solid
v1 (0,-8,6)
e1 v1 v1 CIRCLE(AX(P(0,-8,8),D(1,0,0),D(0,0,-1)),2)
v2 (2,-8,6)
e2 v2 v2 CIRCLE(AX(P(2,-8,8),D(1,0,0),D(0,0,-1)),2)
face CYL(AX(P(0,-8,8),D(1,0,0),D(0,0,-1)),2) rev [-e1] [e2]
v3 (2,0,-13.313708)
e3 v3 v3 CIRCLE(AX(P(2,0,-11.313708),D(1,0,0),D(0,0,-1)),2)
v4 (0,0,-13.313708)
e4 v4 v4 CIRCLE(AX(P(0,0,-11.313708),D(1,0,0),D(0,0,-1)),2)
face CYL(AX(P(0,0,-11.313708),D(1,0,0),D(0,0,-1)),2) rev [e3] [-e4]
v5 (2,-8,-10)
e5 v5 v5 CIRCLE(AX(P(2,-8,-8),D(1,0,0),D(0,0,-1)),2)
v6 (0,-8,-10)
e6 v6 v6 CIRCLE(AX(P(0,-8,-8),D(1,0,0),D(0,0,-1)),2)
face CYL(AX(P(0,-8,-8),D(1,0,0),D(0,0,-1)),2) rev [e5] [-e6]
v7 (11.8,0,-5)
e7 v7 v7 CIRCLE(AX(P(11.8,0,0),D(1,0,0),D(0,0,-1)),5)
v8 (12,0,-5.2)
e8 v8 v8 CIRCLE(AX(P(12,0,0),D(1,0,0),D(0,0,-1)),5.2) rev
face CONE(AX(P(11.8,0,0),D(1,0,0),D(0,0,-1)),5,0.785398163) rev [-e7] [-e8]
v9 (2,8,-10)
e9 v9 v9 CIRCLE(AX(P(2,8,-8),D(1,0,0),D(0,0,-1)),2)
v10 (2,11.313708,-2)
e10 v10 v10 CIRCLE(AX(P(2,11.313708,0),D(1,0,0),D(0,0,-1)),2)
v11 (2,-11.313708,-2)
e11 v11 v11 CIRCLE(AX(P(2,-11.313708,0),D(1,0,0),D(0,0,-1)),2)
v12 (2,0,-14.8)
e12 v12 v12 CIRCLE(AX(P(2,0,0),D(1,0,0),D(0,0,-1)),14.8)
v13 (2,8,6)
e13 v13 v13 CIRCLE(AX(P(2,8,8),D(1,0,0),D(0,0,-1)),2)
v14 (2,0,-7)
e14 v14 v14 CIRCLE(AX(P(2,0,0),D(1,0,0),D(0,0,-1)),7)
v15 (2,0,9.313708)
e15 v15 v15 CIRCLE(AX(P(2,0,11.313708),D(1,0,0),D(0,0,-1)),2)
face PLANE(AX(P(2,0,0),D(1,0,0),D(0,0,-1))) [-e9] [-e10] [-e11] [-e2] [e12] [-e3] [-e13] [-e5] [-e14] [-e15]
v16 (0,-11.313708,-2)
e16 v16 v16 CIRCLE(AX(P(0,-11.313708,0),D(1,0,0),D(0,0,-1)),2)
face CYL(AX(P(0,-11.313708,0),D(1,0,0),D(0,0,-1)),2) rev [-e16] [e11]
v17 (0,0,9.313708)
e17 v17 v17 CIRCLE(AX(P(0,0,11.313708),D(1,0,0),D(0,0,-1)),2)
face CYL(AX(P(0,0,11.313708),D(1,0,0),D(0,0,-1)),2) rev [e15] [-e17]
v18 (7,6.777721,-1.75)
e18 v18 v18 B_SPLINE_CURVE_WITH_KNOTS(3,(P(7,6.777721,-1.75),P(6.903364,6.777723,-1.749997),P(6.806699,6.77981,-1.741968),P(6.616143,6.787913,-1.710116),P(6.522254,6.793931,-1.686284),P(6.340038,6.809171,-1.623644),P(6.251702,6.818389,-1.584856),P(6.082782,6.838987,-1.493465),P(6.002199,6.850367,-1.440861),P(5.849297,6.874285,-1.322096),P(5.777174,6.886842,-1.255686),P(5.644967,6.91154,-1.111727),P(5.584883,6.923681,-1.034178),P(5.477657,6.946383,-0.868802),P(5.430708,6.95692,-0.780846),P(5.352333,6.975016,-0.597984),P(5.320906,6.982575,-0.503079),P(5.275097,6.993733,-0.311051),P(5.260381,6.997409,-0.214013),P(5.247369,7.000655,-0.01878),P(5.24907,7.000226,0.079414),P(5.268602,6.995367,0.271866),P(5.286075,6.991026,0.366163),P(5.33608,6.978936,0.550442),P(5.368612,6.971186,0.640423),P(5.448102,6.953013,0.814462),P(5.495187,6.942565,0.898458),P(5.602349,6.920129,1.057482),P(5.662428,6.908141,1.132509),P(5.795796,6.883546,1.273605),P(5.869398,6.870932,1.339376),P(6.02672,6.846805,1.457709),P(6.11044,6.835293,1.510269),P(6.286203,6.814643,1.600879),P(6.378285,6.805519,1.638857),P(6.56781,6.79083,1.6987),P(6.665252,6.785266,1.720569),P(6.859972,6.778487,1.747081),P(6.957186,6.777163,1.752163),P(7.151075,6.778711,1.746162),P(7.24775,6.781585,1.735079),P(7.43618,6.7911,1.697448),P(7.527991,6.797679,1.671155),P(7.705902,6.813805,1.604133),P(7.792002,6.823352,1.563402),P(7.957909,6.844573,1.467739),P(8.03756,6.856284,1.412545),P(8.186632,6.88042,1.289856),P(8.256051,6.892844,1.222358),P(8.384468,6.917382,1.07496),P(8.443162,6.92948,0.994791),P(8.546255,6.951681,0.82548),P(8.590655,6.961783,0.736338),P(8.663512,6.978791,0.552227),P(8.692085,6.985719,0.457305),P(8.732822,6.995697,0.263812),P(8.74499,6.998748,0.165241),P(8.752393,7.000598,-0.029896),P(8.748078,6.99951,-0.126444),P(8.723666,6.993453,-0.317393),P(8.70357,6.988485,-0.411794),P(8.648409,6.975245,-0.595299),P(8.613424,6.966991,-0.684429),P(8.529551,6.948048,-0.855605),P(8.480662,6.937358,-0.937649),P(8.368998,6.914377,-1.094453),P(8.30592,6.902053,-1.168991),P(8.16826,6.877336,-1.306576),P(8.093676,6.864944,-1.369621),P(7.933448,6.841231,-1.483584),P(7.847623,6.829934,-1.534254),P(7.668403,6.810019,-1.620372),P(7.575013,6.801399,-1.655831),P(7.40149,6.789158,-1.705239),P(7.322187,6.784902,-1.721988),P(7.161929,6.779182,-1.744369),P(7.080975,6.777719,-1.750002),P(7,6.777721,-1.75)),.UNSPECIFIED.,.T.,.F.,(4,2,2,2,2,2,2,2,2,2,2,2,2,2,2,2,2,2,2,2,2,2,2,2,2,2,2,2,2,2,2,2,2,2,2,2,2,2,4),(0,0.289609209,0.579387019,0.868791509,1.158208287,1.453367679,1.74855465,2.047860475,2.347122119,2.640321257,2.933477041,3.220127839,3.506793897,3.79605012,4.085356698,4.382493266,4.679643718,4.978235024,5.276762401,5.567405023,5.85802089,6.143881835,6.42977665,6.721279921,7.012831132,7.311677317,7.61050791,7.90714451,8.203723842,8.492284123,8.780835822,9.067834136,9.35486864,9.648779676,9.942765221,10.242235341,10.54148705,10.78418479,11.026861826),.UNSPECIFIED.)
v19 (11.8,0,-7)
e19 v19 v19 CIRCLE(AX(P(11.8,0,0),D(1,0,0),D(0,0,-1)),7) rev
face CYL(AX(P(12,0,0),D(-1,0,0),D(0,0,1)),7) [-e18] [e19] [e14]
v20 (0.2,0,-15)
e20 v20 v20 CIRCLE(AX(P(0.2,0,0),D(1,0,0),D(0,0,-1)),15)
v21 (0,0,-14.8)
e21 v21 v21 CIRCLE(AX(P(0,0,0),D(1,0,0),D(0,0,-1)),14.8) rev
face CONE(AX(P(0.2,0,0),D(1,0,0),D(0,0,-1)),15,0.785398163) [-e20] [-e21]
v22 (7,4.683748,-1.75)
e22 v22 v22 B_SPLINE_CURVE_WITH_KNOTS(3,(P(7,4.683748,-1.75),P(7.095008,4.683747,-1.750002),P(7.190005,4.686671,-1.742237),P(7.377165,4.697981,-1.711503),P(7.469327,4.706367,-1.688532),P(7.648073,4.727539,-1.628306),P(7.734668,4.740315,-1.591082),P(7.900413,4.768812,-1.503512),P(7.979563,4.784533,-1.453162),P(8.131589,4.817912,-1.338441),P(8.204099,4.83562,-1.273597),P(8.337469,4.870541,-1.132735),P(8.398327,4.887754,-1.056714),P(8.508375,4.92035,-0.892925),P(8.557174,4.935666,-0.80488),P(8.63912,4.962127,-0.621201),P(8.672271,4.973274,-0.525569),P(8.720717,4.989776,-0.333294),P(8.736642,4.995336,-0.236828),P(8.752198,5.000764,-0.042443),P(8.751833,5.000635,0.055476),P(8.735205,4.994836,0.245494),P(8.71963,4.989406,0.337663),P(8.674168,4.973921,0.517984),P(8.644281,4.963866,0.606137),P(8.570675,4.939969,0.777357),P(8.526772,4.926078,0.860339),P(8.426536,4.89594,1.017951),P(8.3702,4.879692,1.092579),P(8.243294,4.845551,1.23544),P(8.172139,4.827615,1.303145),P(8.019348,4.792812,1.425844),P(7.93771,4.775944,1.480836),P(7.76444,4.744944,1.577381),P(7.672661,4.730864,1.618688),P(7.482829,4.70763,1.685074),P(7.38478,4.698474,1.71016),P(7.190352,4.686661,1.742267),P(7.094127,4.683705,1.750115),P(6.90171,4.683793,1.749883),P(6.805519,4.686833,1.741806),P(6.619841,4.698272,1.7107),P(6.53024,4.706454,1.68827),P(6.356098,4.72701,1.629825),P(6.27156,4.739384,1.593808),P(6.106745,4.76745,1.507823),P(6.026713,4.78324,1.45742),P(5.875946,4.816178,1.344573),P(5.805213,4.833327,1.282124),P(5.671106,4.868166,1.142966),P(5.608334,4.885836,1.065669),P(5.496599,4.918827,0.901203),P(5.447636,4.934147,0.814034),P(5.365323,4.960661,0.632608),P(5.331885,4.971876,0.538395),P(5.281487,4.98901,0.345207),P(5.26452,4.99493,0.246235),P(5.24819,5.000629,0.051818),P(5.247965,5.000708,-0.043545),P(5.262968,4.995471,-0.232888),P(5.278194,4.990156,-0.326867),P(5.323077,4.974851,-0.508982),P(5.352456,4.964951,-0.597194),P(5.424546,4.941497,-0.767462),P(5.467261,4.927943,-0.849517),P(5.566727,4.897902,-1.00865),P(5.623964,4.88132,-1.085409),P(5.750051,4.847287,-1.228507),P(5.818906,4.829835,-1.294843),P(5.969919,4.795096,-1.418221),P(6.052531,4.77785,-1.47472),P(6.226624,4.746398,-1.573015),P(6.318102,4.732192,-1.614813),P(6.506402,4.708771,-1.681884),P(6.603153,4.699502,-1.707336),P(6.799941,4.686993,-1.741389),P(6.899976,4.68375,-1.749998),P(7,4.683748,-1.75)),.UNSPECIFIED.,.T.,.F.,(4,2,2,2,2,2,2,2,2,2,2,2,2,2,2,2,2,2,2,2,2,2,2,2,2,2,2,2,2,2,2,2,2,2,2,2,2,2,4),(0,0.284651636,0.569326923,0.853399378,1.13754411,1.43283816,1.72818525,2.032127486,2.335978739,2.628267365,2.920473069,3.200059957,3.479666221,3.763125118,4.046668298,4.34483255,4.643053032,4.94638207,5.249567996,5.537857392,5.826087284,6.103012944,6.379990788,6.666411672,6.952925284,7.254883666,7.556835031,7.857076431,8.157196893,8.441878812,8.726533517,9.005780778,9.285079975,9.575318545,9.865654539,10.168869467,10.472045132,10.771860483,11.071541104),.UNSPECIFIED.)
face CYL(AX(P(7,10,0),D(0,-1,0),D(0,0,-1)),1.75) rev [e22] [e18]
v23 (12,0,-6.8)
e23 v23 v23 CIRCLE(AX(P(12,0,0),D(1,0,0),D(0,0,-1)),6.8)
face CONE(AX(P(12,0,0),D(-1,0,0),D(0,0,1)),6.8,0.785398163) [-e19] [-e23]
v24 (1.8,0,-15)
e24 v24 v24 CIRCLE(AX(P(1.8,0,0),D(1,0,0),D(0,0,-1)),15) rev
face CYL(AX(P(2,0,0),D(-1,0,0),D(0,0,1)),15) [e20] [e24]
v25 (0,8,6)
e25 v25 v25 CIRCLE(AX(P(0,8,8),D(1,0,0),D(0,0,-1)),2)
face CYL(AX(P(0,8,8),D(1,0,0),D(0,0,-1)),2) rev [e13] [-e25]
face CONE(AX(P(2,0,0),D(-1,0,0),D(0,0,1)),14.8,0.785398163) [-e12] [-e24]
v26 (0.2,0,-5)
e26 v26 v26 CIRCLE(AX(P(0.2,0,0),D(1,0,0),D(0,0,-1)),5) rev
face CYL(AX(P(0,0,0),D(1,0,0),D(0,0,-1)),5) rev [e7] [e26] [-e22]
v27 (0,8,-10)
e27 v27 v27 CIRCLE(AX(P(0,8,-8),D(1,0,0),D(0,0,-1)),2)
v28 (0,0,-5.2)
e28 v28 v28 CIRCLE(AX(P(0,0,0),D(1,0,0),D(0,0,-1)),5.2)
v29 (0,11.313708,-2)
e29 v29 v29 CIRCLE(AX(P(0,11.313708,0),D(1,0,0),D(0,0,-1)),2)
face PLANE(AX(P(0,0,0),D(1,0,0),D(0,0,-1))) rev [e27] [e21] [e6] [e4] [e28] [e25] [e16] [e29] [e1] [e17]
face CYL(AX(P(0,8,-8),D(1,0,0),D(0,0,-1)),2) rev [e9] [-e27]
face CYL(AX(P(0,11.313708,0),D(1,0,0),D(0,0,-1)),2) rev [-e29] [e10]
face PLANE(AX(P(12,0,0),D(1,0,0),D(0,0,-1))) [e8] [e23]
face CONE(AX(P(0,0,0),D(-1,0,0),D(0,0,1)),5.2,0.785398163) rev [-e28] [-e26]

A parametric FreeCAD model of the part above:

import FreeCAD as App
import Part
import Sketcher
Q = App.Units.Quantity


def edges_at(feature, points):
    """Names of the edges that pass closest to the given points."""
    edges = feature.Shape.Edges
    near = lambda p: min(range(len(edges)), key=lambda i: edges[i].distToShape(Part.Vertex(*p))[0])
    return sorted({f"Edge{near(p) + 1}" for p in points})

doc = App.newDocument("Part")
body = doc.addObject("PartDesign::Body", "Body")

sketch1 = doc.addObject("Sketcher::SketchObject", "Sketch")
body.addObject(sketch1)
sketch1.AttachmentSupport = (doc.YZ_Plane, [""])
sketch1.MapMode = "FlatFace"
sketch1.addGeometry(Part.Circle(App.Vector(0, 0, 0), App.Vector(0, 0, 1), 15), False)
sketch1.addConstraint([
    Sketcher.Constraint("Coincident", 0, 3, -1, 1),
    Sketcher.Constraint("Diameter", 0, Q("30 mm")),
])
pad1 = doc.addObject("PartDesign::Pad", "Pad")
body.addObject(pad1)
pad1.Profile = sketch1
pad1.Length = 2

sketch2 = doc.addObject("Sketcher::SketchObject", "Sketch001")
body.addObject(sketch2)
sketch2.AttachmentSupport = (doc.YZ_Plane, [""])
sketch2.MapMode = "FlatFace"
sketch2.AttachmentOffset = App.Placement(App.Vector(0, 0, 2), App.Rotation())
sketch2.addGeometry(Part.Circle(App.Vector(0, 0, 0), App.Vector(0, 0, 1), 7), False)
sketch2.addConstraint([
    Sketcher.Constraint("Coincident", 0, 3, -1, 1),
    Sketcher.Constraint("Diameter", 0, Q("14 mm")),
])
pad2 = doc.addObject("PartDesign::Pad", "Pad001")
body.addObject(pad2)
pad2.Profile = sketch2
pad2.Length = 10

sketch3 = doc.addObject("Sketcher::SketchObject", "Sketch002")
body.addObject(sketch3)
sketch3.AttachmentSupport = (doc.YZ_Plane, [""])
sketch3.MapMode = "FlatFace"
sketch3.AttachmentOffset = App.Placement(App.Vector(0, 0, 2), App.Rotation())
sketch3.addGeometry([
    Part.Circle(App.Vector(11.3, 0, 0), App.Vector(0, 0, 1), 2),
    Part.Circle(App.Vector(8, -8, 0), App.Vector(0, 0, 1), 2),
    Part.Circle(App.Vector(0, -11.3, 0), App.Vector(0, 0, 1), 2),
    Part.Circle(App.Vector(-8, -8, 0), App.Vector(0, 0, 1), 2),
    Part.Circle(App.Vector(-11.3, 0, 0), App.Vector(0, 0, 1), 2),
    Part.Circle(App.Vector(-8, 8, 0), App.Vector(0, 0, 1), 2),
    Part.Circle(App.Vector(0, 11.3, 0), App.Vector(0, 0, 1), 2),
    Part.Circle(App.Vector(8, 8, 0), App.Vector(0, 0, 1), 2),
], False)
sketch3.addConstraint([
    Sketcher.Constraint("Equal", 0, 1),
    Sketcher.Constraint("Equal", 1, 2),
    Sketcher.Constraint("Equal", 2, 3),
    Sketcher.Constraint("Equal", 3, 4),
    Sketcher.Constraint("Equal", 4, 5),
    Sketcher.Constraint("Equal", 5, 6),
    Sketcher.Constraint("Equal", 6, 7),
    Sketcher.Constraint("Symmetric", 0, 3, 4, 3, -1, 1),
    Sketcher.Constraint("Symmetric", 1, 3, 5, 3, -1, 1),
    Sketcher.Constraint("Symmetric", 2, 3, 6, 3, -1, 1),
    Sketcher.Constraint("Symmetric", 3, 3, 7, 3, -1, 1),
    Sketcher.Constraint("Symmetric", 1, 3, 3, 3, -2),
    Sketcher.Constraint("PointOnObject", 0, 3, -1),
    Sketcher.Constraint("PointOnObject", 2, 3, -2),
    Sketcher.Constraint("Diameter", 0, Q("4 mm")),
    Sketcher.Constraint("DistanceX", -1, 1, 1, 3, Q("8 mm")),
    Sketcher.Constraint("DistanceY", 1, 3, -1, 1, Q("8 mm")),
    Sketcher.Constraint("DistanceX", -1, 1, 0, 3, Q("11.313708 mm")),
    Sketcher.Constraint("DistanceY", 2, 3, -1, 1, Q("11.313708 mm")),
])
pocket1 = doc.addObject("PartDesign::Pocket", "Pocket")
body.addObject(pocket1)
pocket1.Profile = sketch3
pocket1.Type = "ThroughAll"

sketch4 = doc.addObject("Sketcher::SketchObject", "Sketch003")
body.addObject(sketch4)
sketch4.AttachmentSupport = (doc.YZ_Plane, [""])
sketch4.MapMode = "FlatFace"
sketch4.AttachmentOffset = App.Placement(App.Vector(0, 0, 12), App.Rotation())
sketch4.addGeometry(Part.Circle(App.Vector(0, 0, 0), App.Vector(0, 0, 1), 5), False)
sketch4.addConstraint([
    Sketcher.Constraint("Coincident", 0, 3, -1, 1),
    Sketcher.Constraint("Diameter", 0, Q("10 mm")),
])
pocket2 = doc.addObject("PartDesign::Pocket", "Pocket001")
body.addObject(pocket2)
pocket2.Profile = sketch4
pocket2.Type = "ThroughAll"
doc.recompute()

chamfer = doc.addObject("PartDesign::Chamfer", "Chamfer")
body.addObject(chamfer)
chamfer.Base = (pocket2, edges_at(pocket2, [
    (0, 0, 15),
    (0, 0, 5),
    (12, 0, 5),
    (2, 0, 15),
    (12, 0, 7),
]))
chamfer.Size = 0.2

sketch5 = doc.addObject("Sketcher::SketchObject", "Sketch004")
body.addObject(sketch5)
sketch5.AttachmentSupport = (doc.XZ_Plane, [""])
sketch5.MapMode = "FlatFace"
sketch5.addGeometry(Part.Circle(App.Vector(7, 0, 0), App.Vector(0, 0, 1), 1.8), False)
sketch5.addConstraint([
    Sketcher.Constraint("PointOnObject", 0, 3, -1),
    Sketcher.Constraint("Diameter", 0, Q("3.5 mm")),
    Sketcher.Constraint("DistanceX", -1, 1, 0, 3, Q("7 mm")),
])
pocket3 = doc.addObject("PartDesign::Pocket", "Pocket002")
body.addObject(pocket3)
pocket3.Profile = sketch5
pocket3.Length = 10

doc.recompute()
